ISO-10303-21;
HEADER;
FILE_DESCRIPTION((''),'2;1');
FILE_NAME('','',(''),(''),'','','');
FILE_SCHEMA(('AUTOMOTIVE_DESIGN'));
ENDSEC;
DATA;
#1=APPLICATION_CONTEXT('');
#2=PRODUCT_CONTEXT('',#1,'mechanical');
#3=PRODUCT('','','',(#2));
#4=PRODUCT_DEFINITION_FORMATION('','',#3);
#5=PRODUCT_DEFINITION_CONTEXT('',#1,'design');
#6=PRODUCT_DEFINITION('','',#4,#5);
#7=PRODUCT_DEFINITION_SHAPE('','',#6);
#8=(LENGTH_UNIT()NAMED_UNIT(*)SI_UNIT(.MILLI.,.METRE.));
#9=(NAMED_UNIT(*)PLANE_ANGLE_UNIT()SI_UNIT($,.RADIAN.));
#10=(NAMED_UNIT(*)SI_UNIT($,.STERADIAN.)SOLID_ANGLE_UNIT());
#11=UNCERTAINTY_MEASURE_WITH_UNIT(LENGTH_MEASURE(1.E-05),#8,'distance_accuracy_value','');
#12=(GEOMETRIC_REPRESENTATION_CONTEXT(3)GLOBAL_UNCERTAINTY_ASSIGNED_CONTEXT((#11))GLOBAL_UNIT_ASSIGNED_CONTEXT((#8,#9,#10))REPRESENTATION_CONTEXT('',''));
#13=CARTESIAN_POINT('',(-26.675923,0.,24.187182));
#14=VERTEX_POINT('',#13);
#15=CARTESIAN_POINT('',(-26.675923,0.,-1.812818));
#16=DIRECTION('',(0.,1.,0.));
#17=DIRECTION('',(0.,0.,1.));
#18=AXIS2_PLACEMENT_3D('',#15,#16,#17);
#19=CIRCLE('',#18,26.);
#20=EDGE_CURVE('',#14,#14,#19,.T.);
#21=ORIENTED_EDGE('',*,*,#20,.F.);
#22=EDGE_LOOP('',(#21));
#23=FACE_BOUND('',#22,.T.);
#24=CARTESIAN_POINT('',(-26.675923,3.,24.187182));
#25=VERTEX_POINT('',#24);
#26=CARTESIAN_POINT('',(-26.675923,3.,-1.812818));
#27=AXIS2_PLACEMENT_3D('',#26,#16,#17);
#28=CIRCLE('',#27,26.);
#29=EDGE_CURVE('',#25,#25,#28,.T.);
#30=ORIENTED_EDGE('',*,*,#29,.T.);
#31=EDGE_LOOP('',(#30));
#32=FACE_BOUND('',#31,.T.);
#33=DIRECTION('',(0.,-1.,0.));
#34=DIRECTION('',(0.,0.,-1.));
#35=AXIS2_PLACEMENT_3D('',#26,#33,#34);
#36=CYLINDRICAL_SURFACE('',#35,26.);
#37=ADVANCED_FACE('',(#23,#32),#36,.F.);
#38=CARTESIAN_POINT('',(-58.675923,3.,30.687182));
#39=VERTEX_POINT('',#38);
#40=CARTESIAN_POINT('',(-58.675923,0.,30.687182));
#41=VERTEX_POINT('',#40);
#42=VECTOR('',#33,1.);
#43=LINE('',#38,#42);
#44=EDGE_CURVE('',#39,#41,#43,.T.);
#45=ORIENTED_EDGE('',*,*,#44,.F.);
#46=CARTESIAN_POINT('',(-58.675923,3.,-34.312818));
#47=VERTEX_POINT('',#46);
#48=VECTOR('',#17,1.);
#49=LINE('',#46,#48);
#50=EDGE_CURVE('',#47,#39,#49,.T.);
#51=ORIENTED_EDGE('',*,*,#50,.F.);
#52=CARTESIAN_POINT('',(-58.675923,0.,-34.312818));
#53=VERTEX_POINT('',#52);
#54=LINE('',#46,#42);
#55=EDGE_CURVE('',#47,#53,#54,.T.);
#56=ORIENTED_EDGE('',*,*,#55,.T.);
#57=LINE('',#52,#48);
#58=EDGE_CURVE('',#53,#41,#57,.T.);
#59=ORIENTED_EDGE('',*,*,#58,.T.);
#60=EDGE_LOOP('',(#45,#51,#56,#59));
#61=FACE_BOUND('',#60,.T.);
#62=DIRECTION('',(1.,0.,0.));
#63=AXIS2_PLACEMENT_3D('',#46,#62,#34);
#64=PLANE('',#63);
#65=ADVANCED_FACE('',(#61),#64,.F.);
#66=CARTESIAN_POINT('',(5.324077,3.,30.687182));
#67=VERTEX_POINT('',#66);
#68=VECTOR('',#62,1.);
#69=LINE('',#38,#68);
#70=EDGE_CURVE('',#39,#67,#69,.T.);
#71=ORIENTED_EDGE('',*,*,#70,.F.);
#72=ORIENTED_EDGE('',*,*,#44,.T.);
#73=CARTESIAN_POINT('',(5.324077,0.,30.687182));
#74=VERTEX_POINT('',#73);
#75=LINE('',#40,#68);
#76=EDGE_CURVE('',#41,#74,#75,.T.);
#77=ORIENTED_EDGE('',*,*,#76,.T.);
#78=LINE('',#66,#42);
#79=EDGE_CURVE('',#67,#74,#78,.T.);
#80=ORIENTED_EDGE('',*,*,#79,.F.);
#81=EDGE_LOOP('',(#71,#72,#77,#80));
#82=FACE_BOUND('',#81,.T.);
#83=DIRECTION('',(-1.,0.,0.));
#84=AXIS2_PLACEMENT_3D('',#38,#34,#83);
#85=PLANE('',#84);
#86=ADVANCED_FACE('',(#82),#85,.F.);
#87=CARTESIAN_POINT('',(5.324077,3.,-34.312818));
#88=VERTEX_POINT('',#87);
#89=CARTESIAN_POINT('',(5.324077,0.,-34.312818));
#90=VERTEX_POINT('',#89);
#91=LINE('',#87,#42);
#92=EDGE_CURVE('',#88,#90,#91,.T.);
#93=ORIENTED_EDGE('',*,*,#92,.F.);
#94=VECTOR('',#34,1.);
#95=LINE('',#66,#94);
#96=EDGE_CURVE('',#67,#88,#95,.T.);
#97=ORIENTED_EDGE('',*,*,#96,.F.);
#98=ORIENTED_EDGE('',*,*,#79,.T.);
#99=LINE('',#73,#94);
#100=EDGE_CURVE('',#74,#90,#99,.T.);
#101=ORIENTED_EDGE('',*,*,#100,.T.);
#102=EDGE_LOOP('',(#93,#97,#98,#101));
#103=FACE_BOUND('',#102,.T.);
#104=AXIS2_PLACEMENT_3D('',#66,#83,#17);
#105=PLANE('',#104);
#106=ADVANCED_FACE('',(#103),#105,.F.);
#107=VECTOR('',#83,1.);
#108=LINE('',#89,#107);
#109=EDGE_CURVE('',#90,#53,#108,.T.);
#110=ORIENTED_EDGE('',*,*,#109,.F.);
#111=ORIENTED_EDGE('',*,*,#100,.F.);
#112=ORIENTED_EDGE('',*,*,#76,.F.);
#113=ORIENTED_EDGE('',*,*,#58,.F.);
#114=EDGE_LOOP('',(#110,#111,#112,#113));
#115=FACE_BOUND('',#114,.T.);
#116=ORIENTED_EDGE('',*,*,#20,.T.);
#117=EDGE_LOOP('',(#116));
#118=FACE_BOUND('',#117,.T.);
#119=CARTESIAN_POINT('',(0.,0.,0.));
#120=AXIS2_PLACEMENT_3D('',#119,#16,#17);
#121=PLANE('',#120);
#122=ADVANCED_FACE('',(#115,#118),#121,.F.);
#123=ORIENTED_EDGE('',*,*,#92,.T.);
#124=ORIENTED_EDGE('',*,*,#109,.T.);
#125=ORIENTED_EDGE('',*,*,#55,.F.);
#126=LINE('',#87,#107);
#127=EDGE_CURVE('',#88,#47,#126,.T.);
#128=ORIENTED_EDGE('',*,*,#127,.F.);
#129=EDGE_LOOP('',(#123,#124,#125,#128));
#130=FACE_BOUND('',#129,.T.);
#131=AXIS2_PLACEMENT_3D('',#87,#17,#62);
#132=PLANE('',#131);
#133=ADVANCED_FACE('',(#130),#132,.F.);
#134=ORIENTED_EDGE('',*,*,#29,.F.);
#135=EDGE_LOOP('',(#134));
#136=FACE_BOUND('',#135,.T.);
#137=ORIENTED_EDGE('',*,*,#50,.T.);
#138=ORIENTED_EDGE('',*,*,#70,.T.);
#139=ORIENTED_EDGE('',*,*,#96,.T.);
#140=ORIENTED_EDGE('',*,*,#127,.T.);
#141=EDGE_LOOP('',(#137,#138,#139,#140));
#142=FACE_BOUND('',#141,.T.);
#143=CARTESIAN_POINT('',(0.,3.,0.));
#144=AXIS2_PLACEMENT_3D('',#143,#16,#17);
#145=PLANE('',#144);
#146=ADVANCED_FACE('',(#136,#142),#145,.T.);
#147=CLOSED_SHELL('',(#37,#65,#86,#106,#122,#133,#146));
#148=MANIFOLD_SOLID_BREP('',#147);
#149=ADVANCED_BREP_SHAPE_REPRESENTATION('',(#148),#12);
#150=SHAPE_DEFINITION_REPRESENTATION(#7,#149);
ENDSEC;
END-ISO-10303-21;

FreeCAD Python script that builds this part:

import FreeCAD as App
import Part
import Sketcher

V = App.Vector

doc = App.newDocument("Part")
body = doc.addObject("PartDesign::Body", "Body")

sketch1 = doc.addObject("Sketcher::SketchObject", "Sketch")
body.addObject(sketch1)
sketch1.AttachmentSupport = (doc.XZ_Plane, [""])
sketch1.MapMode = "FlatFace"
sketch1.addGeometry([
    Part.LineSegment(V(-58.675923, -34.312818, 0), V(-58.675923, 30.687182, 0)),
    Part.LineSegment(V(-58.675923, 30.687182, 0), V(5.324077, 30.687182, 0)),
    Part.LineSegment(V(5.324077, 30.687182, 0), V(5.324077, -34.312818, 0)),
    Part.LineSegment(V(5.324077, -34.312818, 0), V(-58.675923, -34.312818, 0)),
    Part.Circle(V(-26.675923, -1.812818, 0), V(0, 0, 1), 26),
], False)
sketch1.addConstraint([
    Sketcher.Constraint("Coincident", 0, 2, 1, 1),
    Sketcher.Constraint("Coincident", 1, 2, 2, 1),
    Sketcher.Constraint("Coincident", 2, 2, 3, 1),
    Sketcher.Constraint("Coincident", 3, 2, 0, 1),
    Sketcher.Constraint("Vertical", 0),
    Sketcher.Constraint("Horizontal", 1),
    Sketcher.Constraint("Vertical", 2),
    Sketcher.Constraint("Horizontal", 3),
    Sketcher.Constraint("Diameter", 4, 52.0),
    Sketcher.Constraint("DistanceX", 1, 1, 1, 2, 64.0),
    Sketcher.Constraint("DistanceY", 0, 1, 0, 2, 65.0),
    Sketcher.Constraint("DistanceX", 0, 2, 4, 3, 32.0),
    Sketcher.Constraint("DistanceY", 4, 3, 0, 2, 32.5),
    Sketcher.Constraint("DistanceX", 4, 3, -1, 1, 26.675923),
    Sketcher.Constraint("DistanceY", 4, 3, -1, 1, 1.812818),
])
pad1 = doc.addObject("PartDesign::Pad", "Pad")
body.addObject(pad1)
pad1.Profile = sketch1
pad1.Length = 3
pad1.Reversed = True

doc.recompute()
